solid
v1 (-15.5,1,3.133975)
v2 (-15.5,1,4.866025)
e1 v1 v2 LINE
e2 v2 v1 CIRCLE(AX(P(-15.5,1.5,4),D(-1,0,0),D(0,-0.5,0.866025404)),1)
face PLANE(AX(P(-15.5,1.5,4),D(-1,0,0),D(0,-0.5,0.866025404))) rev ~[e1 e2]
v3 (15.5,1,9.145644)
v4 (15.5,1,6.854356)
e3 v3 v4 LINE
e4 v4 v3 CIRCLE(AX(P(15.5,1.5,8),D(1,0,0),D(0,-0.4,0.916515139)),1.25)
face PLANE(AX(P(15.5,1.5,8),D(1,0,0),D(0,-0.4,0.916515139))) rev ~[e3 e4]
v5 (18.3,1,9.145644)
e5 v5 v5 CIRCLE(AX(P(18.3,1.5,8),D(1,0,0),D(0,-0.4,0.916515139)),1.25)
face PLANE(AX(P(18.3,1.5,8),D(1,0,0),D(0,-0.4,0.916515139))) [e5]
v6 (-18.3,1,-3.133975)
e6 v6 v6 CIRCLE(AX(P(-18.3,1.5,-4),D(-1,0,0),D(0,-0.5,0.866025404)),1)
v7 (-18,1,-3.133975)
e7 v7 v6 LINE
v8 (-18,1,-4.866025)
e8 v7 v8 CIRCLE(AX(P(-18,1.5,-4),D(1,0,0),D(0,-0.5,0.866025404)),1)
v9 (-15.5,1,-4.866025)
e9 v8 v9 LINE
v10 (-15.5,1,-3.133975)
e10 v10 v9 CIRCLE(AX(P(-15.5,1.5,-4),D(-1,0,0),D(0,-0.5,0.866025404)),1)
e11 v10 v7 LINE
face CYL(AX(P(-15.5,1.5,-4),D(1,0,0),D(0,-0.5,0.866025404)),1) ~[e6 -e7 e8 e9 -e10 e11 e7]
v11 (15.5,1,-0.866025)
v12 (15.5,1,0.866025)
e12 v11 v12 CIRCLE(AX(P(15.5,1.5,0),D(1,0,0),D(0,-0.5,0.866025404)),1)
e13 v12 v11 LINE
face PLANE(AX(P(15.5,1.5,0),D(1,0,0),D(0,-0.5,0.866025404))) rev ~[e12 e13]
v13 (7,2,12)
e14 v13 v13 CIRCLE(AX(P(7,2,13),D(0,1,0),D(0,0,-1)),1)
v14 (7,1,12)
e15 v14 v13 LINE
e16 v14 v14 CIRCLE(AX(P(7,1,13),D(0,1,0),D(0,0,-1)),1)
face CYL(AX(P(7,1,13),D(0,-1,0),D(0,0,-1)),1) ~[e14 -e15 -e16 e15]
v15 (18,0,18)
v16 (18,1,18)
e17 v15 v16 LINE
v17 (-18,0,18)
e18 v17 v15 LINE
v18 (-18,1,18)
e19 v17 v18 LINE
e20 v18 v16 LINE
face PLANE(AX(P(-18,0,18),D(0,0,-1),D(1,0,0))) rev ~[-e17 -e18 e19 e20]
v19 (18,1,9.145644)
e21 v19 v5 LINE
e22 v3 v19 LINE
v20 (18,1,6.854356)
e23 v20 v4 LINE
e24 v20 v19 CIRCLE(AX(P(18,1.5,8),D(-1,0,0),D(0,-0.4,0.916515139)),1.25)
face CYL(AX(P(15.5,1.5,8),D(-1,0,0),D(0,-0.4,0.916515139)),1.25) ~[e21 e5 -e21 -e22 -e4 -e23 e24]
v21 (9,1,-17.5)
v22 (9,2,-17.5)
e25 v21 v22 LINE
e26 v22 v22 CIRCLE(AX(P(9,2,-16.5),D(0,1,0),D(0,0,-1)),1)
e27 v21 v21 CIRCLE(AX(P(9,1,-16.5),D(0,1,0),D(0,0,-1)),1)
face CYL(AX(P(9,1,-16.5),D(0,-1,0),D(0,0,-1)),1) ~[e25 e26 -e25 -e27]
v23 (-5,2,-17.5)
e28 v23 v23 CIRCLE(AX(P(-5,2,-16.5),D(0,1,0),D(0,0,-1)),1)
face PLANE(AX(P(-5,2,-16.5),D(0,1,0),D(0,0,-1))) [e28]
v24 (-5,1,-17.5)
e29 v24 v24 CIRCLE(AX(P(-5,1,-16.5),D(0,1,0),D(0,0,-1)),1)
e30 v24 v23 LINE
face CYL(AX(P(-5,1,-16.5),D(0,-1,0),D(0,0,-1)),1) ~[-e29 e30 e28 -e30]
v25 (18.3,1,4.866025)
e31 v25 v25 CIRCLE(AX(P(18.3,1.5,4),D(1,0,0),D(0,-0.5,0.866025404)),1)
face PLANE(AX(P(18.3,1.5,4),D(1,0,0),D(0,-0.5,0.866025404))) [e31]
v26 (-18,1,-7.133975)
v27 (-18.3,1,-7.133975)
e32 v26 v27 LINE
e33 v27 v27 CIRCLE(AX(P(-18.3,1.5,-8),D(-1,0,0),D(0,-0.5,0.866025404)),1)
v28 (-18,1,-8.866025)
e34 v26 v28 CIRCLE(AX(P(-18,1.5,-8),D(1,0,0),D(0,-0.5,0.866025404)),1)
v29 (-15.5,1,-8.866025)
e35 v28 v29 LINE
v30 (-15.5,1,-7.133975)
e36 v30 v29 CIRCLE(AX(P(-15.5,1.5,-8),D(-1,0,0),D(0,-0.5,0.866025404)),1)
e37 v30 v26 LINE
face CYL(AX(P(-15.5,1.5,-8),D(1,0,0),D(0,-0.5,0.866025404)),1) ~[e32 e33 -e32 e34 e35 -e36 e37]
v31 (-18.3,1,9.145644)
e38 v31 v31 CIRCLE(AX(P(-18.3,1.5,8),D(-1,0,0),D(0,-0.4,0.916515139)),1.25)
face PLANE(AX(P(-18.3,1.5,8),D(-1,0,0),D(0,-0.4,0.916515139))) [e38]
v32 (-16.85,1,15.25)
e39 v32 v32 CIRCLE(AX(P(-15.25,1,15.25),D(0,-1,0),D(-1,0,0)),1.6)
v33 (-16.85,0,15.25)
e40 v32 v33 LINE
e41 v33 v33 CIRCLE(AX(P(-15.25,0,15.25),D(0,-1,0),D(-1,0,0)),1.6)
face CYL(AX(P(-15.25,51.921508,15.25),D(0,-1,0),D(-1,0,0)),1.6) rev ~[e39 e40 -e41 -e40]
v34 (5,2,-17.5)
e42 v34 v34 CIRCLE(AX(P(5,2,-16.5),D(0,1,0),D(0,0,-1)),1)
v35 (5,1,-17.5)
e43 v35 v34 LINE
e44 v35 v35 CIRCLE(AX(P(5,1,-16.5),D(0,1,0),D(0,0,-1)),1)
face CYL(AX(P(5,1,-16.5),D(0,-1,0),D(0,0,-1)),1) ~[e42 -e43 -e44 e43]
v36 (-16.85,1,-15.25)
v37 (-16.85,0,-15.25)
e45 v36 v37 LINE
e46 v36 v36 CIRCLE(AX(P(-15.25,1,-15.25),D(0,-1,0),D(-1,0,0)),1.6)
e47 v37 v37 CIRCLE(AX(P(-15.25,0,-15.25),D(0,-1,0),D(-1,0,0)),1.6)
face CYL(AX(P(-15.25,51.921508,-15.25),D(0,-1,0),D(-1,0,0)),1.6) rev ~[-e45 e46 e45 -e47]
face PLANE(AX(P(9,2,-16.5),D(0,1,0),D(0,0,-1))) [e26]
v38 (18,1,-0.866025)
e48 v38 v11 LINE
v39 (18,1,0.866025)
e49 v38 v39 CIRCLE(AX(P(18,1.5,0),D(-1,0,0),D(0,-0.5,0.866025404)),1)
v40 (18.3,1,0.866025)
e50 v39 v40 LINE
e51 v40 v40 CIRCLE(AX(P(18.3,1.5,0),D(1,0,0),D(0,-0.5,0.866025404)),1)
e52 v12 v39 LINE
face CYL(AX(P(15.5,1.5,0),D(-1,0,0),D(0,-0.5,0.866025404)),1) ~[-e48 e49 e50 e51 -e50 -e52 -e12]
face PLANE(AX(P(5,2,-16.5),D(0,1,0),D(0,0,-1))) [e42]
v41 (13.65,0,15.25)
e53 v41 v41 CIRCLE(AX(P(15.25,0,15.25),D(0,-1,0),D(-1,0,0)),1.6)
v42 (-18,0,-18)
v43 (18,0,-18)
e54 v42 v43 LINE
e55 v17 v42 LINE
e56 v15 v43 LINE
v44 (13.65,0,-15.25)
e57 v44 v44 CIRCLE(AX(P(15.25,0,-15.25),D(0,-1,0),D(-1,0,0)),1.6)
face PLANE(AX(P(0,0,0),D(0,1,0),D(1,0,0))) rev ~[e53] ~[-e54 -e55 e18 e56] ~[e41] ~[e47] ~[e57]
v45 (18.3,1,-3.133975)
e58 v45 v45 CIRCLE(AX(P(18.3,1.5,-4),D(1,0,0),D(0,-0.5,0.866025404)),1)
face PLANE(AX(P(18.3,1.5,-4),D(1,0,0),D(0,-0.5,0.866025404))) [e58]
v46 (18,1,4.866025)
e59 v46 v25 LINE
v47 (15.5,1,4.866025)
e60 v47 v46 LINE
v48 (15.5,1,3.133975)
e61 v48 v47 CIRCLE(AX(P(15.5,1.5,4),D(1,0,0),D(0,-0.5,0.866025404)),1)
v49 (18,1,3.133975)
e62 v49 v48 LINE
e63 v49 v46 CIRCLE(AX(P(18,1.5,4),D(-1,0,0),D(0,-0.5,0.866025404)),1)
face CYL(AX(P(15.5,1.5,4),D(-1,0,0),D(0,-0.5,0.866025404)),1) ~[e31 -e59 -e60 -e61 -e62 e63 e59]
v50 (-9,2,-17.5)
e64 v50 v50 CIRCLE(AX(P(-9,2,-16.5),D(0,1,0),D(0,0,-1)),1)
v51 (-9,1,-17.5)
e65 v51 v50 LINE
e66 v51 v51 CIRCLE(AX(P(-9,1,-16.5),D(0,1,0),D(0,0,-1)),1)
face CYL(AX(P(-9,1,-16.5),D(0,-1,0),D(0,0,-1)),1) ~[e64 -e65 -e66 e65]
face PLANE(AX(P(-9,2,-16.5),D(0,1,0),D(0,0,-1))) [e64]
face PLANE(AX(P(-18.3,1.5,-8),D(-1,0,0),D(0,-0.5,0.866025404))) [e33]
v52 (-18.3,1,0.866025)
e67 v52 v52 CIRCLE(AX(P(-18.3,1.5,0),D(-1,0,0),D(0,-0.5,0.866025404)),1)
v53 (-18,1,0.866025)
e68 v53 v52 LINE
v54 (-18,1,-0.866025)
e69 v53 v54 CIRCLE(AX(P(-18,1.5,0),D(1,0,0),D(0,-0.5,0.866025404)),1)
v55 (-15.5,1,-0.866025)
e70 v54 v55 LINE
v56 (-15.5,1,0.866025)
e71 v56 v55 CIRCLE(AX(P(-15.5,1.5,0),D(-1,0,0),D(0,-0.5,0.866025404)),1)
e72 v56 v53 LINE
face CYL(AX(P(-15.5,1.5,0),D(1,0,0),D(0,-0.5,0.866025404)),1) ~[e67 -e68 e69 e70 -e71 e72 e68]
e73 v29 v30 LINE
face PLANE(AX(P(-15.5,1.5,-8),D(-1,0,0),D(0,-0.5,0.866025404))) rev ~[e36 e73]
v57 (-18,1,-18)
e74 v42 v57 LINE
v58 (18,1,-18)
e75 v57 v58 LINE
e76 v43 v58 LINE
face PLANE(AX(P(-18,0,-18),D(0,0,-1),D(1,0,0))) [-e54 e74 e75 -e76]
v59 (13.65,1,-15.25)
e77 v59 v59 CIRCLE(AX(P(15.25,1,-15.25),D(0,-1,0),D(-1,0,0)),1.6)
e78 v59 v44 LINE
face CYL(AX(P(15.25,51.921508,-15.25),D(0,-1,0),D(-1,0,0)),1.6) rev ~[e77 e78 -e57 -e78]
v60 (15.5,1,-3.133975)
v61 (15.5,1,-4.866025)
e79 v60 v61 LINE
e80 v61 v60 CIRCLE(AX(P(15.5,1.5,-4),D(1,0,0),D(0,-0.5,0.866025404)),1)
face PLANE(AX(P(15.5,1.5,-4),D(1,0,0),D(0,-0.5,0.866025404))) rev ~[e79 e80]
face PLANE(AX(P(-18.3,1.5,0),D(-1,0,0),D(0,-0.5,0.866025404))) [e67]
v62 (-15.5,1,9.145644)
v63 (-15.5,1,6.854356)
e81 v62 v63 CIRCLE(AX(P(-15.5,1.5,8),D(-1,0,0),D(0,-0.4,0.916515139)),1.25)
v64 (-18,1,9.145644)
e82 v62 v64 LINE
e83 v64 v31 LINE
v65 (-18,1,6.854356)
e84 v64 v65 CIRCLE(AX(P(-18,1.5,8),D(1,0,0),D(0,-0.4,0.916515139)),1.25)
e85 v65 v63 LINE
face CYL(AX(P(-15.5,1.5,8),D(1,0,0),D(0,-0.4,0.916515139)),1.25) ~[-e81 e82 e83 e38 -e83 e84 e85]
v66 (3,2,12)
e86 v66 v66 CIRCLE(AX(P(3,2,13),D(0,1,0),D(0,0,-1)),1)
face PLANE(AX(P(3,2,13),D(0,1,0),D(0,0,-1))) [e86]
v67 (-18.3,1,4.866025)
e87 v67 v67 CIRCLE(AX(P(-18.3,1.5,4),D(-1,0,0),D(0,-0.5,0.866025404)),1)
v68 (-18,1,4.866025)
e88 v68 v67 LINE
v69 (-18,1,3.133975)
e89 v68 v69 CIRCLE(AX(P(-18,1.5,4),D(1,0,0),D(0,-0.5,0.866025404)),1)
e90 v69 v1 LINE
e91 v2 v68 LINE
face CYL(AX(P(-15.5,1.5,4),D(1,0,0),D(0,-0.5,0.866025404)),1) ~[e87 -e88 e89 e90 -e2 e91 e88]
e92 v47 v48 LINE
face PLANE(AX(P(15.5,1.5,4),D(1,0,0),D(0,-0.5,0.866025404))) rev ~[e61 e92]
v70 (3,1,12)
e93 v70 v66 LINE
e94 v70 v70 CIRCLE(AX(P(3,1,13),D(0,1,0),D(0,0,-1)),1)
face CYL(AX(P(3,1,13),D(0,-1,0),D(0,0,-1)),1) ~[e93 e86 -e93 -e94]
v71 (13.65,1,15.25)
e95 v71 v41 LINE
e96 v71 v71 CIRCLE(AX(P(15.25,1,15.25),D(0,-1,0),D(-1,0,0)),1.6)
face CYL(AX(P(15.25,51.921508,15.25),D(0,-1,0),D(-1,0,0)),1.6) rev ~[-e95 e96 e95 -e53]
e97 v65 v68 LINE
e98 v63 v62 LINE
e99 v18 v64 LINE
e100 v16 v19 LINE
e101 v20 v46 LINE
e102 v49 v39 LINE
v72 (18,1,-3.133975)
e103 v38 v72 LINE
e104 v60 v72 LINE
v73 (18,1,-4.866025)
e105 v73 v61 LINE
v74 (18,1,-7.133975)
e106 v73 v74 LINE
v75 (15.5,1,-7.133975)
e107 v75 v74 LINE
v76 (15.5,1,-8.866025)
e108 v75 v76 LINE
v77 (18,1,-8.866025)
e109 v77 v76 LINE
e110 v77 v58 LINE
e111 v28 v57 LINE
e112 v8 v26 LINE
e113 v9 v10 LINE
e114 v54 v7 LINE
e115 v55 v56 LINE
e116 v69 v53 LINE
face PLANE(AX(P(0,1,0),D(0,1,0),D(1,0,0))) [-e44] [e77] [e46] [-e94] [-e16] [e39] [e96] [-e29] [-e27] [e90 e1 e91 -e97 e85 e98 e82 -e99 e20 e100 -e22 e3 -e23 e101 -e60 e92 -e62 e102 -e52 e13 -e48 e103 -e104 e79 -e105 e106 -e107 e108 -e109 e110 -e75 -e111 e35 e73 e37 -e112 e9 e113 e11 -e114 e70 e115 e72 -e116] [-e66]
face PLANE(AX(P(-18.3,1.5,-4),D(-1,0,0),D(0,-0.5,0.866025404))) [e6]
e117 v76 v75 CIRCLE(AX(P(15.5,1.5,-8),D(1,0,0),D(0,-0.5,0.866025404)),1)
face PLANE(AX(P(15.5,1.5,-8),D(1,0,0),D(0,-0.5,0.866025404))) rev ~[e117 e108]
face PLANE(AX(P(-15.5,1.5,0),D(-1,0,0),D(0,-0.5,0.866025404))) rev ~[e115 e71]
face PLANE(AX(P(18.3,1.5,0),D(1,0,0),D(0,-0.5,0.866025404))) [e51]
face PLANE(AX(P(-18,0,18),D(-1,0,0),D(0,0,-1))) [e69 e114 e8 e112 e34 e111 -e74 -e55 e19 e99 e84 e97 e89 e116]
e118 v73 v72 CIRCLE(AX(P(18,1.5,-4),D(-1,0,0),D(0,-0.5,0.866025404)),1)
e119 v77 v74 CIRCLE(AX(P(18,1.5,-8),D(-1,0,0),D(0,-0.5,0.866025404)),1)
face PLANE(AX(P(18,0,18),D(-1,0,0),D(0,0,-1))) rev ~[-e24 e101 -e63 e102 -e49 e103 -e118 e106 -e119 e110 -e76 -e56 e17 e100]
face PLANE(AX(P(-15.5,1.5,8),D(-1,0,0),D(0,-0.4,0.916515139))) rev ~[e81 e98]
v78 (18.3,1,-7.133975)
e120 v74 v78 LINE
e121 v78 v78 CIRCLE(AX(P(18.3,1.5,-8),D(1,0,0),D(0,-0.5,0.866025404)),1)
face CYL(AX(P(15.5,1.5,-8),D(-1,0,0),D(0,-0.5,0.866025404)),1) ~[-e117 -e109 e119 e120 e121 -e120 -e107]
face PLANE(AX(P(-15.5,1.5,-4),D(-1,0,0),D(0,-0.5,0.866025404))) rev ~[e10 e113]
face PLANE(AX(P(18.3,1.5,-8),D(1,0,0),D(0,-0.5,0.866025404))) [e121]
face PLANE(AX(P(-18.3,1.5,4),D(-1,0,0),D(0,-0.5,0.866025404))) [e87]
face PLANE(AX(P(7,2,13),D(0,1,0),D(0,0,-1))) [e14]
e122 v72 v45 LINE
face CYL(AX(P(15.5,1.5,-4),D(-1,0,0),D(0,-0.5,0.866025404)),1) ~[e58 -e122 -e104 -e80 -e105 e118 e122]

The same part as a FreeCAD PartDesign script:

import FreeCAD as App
import Part
import Sketcher

V = App.Vector
Q = App.Units.Quantity

doc = App.newDocument("Part")
body = doc.addObject("PartDesign::Body", "Body")

# Sketch on XZ plane
sketch1 = body.newObject("Sketcher::SketchObject", "Sketch")
sketch1.AttachmentSupport = (doc.getObject("XZ_Plane"), [""])
sketch1.MapMode = "FlatFace"
sketch1.addGeometry(Part.LineSegment(V(-18, -18, 0), V(-18, 18, 0)), False)
sketch1.addGeometry(Part.LineSegment(V(-18, 18, 0), V(18, 18, 0)), False)
sketch1.addGeometry(Part.LineSegment(V(18, 18, 0), V(18, -18, 0)), False)
sketch1.addGeometry(Part.LineSegment(V(18, -18, 0), V(-18, -18, 0)), False)
sketch1.addConstraint(Sketcher.Constraint("Coincident", 0, 2, 1, 1))
sketch1.addConstraint(Sketcher.Constraint("Coincident", 1, 2, 2, 1))
sketch1.addConstraint(Sketcher.Constraint("Coincident", 2, 2, 3, 1))
sketch1.addConstraint(Sketcher.Constraint("Coincident", 3, 2, 0, 1))
sketch1.addConstraint(Sketcher.Constraint("Vertical", 0))
sketch1.addConstraint(Sketcher.Constraint("Horizontal", 1))
sketch1.addConstraint(Sketcher.Constraint("Vertical", 2))
sketch1.addConstraint(Sketcher.Constraint("Horizontal", 3))
sketch1.addConstraint(Sketcher.Constraint("Symmetric", 0, 2, 2, 2, -1, 1))
sketch1.addConstraint(Sketcher.Constraint("Equal", 3, 0))
sketch1.addConstraint(Sketcher.Constraint("DistanceX", 1, 1, 1, 2, Q("36 mm")))
pad1 = body.newObject("PartDesign::Pad", "Pad")
pad1.Profile = sketch1
pad1.Length = 1
pad1.Reversed = True

# Sketch on XZ plane
sketch2 = body.newObject("Sketcher::SketchObject", "Sketch001")
sketch2.AttachmentSupport = (doc.getObject("XZ_Plane"), [""])
sketch2.MapMode = "FlatFace"
sketch2.AttachmentOffset = App.Placement(V(0, 0, -1), App.Rotation())
sketch2.addGeometry(Part.Circle(V(-15.2, -15.2, 0), V(0, 0, 1), 1.6), False)
sketch2.addGeometry(Part.Circle(V(15.2, -15.2, 0), V(0, 0, 1), 1.6), False)
sketch2.addGeometry(Part.Circle(V(15.2, 15.2, 0), V(0, 0, 1), 1.6), False)
sketch2.addGeometry(Part.Circle(V(-15.2, 15.2, 0), V(0, 0, 1), 1.6), False)
sketch2.addConstraint(Sketcher.Constraint("Equal", 0, 1))
sketch2.addConstraint(Sketcher.Constraint("Equal", 1, 2))
sketch2.addConstraint(Sketcher.Constraint("Equal", 2, 3))
sketch2.addConstraint(Sketcher.Constraint("Symmetric", 0, 3, 2, 3, -1, 1))
sketch2.addConstraint(Sketcher.Constraint("Symmetric", 1, 3, 3, 3, -1, 1))
sketch2.addConstraint(Sketcher.Constraint("Symmetric", 0, 3, 1, 3, -2))
sketch2.addConstraint(Sketcher.Constraint("Diameter", 0, Q("3.2 mm")))
sketch2.addConstraint(Sketcher.Constraint("DistanceX", 0, 3, 1, 3, Q("30.5 mm")))
sketch2.addConstraint(Sketcher.Constraint("DistanceY", 1, 3, 2, 3, Q("30.5 mm")))
doc.recompute()
hole = body.newObject("PartDesign::Hole", "Hole")
hole.Profile = sketch2
hole.ThreadType = "None"
hole.Diameter = 3.2
hole.DepthType = "ThroughAll"
hole.Reversed = True

# Sketch on YZ plane
sketch3 = body.newObject("Sketcher::SketchObject", "Sketch002")
sketch3.AttachmentSupport = (doc.getObject("YZ_Plane"), [""])
sketch3.MapMode = "FlatFace"
sketch3.AttachmentOffset = App.Placement(V(0, 0, 18), App.Rotation())
sketch3.addGeometry(Part.Circle(V(1.5, 8, 0), V(0, 0, 1), 1.2), False)
sketch3.addGeometry(Part.Circle(V(1.5, 4, 0), V(0, 0, 1), 1), False)
sketch3.addGeometry(Part.Circle(V(1.5, 0, 0), V(0, 0, 1), 1), False)
sketch3.addGeometry(Part.Circle(V(1.5, -4, 0), V(0, 0, 1), 1), False)
sketch3.addGeometry(Part.Circle(V(1.5, -8, 0), V(0, 0, 1), 1), False)
sketch3.addConstraint(Sketcher.Constraint("Equal", 1, 2))
sketch3.addConstraint(Sketcher.Constraint("Equal", 2, 3))
sketch3.addConstraint(Sketcher.Constraint("Equal", 3, 4))
sketch3.addConstraint(Sketcher.Constraint("Symmetric", 1, 3, 3, 3, -1))
sketch3.addConstraint(Sketcher.Constraint("Symmetric", 0, 3, 4, 3, -1))
sketch3.addConstraint(Sketcher.Constraint("PointOnObject", 2, 3, -1))
sketch3.addConstraint(Sketcher.Constraint("Vertical", 0, 3, 1, 3))
sketch3.addConstraint(Sketcher.Constraint("Vertical", 1, 3, 2, 3))
sketch3.addConstraint(Sketcher.Constraint("Diameter", 1, Q("2 mm")))
sketch3.addConstraint(Sketcher.Constraint("Diameter", 0, Q("2.5 mm")))
sketch3.addConstraint(Sketcher.Constraint("DistanceY", -1, 1, 0, 3, Q("8 mm")))
sketch3.addConstraint(Sketcher.Constraint("DistanceY", -1, 1, 1, 3, Q("4 mm")))
sketch3.addConstraint(Sketcher.Constraint("DistanceX", -1, 1, 0, 3, Q("1.5 mm")))
pad2 = body.newObject("PartDesign::Pad", "Pad001")
pad2.Profile = sketch3
pad2.Type = "TwoLengths"
pad2.Length = 0.3
pad2.Length2 = 2.5

# Sketch on YZ plane
sketch4 = body.newObject("Sketcher::SketchObject", "Sketch003")
sketch4.AttachmentSupport = (doc.getObject("YZ_Plane"), [""])
sketch4.MapMode = "FlatFace"
sketch4.AttachmentOffset = App.Placement(V(0, 0, -18), App.Rotation())
sketch4.addGeometry(Part.Circle(V(1.5, -8, 0), V(0, 0, 1), 1), False)
sketch4.addGeometry(Part.Circle(V(1.5, -4, 0), V(0, 0, 1), 1), False)
sketch4.addGeometry(Part.Circle(V(1.5, 0, 0), V(0, 0, 1), 1), False)
sketch4.addGeometry(Part.Circle(V(1.5, 4, 0), V(0, 0, 1), 1), False)
sketch4.addGeometry(Part.Circle(V(1.5, 8, 0), V(0, 0, 1), 1.2), False)
sketch4.addConstraint(Sketcher.Constraint("Equal", 0, 1))
sketch4.addConstraint(Sketcher.Constraint("Equal", 1, 2))
sketch4.addConstraint(Sketcher.Constraint("Equal", 2, 3))
sketch4.addConstraint(Sketcher.Constraint("Symmetric", 1, 3, 3, 3, -1))
sketch4.addConstraint(Sketcher.Constraint("Symmetric", 0, 3, 4, 3, -1))
sketch4.addConstraint(Sketcher.Constraint("PointOnObject", 2, 3, -1))
sketch4.addConstraint(Sketcher.Constraint("Vertical", 0, 3, 1, 3))
sketch4.addConstraint(Sketcher.Constraint("Vertical", 1, 3, 2, 3))
sketch4.addConstraint(Sketcher.Constraint("Diameter", 0, Q("2 mm")))
sketch4.addConstraint(Sketcher.Constraint("Diameter", 4, Q("2.5 mm")))
sketch4.addConstraint(Sketcher.Constraint("DistanceY", 0, 3, -1, 1, Q("8 mm")))
sketch4.addConstraint(Sketcher.Constraint("DistanceY", 1, 3, -1, 1, Q("4 mm")))
sketch4.addConstraint(Sketcher.Constraint("DistanceX", -1, 1, 0, 3, Q("1.5 mm")))
pad3 = body.newObject("PartDesign::Pad", "Pad002")
pad3.Profile = sketch4
pad3.Type = "TwoLengths"
pad3.Length = 0.3
pad3.Length2 = 2.5
pad3.Reversed = True

# Sketch on XZ plane
sketch5 = body.newObject("Sketcher::SketchObject", "Sketch004")
sketch5.AttachmentSupport = (doc.getObject("XZ_Plane"), [""])
sketch5.MapMode = "FlatFace"
sketch5.AttachmentOffset = App.Placement(V(0, 0, -1), App.Rotation())
sketch5.addGeometry(Part.Circle(V(-9, -16.5, 0), V(0, 0, 1), 1), False)
sketch5.addGeometry(Part.Circle(V(-5, -16.5, 0), V(0, 0, 1), 1), False)
sketch5.addGeometry(Part.Circle(V(5, -16.5, 0), V(0, 0, 1), 1), False)
sketch5.addGeometry(Part.Circle(V(9, -16.5, 0), V(0, 0, 1), 1), False)
sketch5.addGeometry(Part.Circle(V(3, 13, 0), V(0, 0, 1), 1), False)
sketch5.addGeometry(Part.Circle(V(7, 13, 0), V(0, 0, 1), 1), False)
sketch5.addConstraint(Sketcher.Constraint("Equal", 0, 1))
sketch5.addConstraint(Sketcher.Constraint("Equal", 1, 2))
sketch5.addConstraint(Sketcher.Constraint("Equal", 2, 3))
sketch5.addConstraint(Sketcher.Constraint("Equal", 3, 4))
sketch5.addConstraint(Sketcher.Constraint("Equal", 4, 5))
sketch5.addConstraint(Sketcher.Constraint("Symmetric", 1, 3, 2, 3, -2))
sketch5.addConstraint(Sketcher.Constraint("Symmetric", 0, 3, 3, 3, -2))
sketch5.addConstraint(Sketcher.Constraint("Horizontal", 0, 3, 1, 3))
sketch5.addConstraint(Sketcher.Constraint("Horizontal", 4, 3, 5, 3))
sketch5.addConstraint(Sketcher.Constraint("Diameter", 0, Q("2 mm")))
sketch5.addConstraint(Sketcher.Constraint("DistanceX", 0, 3, -1, 1, Q("9 mm")))
sketch5.addConstraint(Sketcher.Constraint("DistanceX", 1, 3, -1, 1, Q("5 mm")))
sketch5.addConstraint(Sketcher.Constraint("DistanceX", -1, 1, 4, 3, Q("3 mm")))
sketch5.addConstraint(Sketcher.Constraint("DistanceY", -1, 1, 4, 3, Q("13 mm")))
sketch5.addConstraint(Sketcher.Constraint("DistanceX", -1, 1, 5, 3, Q("7 mm")))
sketch5.addConstraint(Sketcher.Constraint("DistanceY", 0, 3, -1, 1, Q("16.5 mm")))
pad4 = body.newObject("PartDesign::Pad", "Pad003")
pad4.Profile = sketch5
pad4.Length = 1
pad4.Reversed = True

doc.recompute()
